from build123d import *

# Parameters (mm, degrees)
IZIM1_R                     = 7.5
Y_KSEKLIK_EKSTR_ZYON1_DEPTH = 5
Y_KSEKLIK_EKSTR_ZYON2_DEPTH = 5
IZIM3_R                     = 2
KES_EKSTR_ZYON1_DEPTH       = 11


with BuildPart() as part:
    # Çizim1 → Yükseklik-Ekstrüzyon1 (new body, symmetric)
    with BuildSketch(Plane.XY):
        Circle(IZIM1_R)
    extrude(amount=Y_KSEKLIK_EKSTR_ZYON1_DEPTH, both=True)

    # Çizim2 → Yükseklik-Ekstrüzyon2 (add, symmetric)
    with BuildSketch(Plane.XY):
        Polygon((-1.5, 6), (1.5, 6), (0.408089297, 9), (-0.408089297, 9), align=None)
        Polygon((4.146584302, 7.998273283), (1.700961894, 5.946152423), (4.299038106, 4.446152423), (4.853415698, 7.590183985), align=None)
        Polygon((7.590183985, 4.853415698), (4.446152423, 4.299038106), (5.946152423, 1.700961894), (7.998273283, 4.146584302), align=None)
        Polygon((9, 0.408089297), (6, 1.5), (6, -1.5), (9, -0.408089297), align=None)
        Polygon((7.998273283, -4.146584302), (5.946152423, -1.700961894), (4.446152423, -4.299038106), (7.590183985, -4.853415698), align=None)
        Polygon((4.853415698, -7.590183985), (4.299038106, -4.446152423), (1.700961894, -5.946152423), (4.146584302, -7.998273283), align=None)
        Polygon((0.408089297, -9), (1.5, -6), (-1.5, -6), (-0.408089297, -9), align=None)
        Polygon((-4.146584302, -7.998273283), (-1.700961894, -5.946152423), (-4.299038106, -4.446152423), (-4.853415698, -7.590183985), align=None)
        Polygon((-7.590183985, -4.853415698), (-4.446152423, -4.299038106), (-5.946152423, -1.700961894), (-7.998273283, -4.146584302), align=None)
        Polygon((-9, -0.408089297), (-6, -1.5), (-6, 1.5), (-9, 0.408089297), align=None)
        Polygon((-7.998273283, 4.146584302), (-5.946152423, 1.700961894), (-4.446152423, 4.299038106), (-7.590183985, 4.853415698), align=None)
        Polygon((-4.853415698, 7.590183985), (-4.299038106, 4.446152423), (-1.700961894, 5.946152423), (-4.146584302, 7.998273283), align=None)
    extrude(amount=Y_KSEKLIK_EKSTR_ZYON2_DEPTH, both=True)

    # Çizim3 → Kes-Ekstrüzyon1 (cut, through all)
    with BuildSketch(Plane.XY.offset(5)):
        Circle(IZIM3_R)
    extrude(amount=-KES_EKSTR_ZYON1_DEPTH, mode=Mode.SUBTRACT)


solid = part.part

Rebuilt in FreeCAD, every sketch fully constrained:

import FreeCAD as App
import Part
import Sketcher

V = App.Vector
Q = App.Units.Quantity

doc = App.newDocument("Part")
body = doc.addObject("PartDesign::Body", "Body")

sketch1 = body.newObject("Sketcher::SketchObject", "Sketch")
sketch1.AttachmentSupport = (doc.getObject("XY_Plane"), [""])
sketch1.MapMode = "FlatFace"
sketch1.addGeometry(Part.Circle(V(0, 0, 0), V(0, 0, 1), 7.5), False)
sketch1.addConstraint(Sketcher.Constraint("Coincident", 0, 3, -1, 1))
sketch1.addConstraint(Sketcher.Constraint("Diameter", 0, Q("15 mm")))
pad1 = body.newObject("PartDesign::Pad", "Pad")
pad1.Profile = sketch1
pad1.Length = 10
pad1.Midplane = True

sketch2 = body.newObject("Sketcher::SketchObject", "Sketch001")
sketch2.AttachmentSupport = (doc.getObject("XY_Plane"), [""])
sketch2.MapMode = "FlatFace"
sketch2.addGeometry(Part.LineSegment(V(-1.5, 6, 0), V(1.5, 6, 0)), False)
sketch2.addGeometry(Part.LineSegment(V(1.5, 6, 0), V(0.408089, 9, 0)), False)
sketch2.addGeometry(Part.LineSegment(V(0.408089, 9, 0), V(-0.408089, 9, 0)), False)
sketch2.addGeometry(Part.LineSegment(V(-0.408089, 9, 0), V(-1.5, 6, 0)), False)
sketch2.addGeometry(Part.LineSegment(V(4.146584, 7.998273, 0), V(1.700962, 5.946152, 0)), False)
sketch2.addGeometry(Part.LineSegment(V(1.700962, 5.946152, 0), V(4.299038, 4.446152, 0)), False)
sketch2.addGeometry(Part.LineSegment(V(4.299038, 4.446152, 0), V(4.853416, 7.590184, 0)), False)
sketch2.addGeometry(Part.LineSegment(V(4.853416, 7.590184, 0), V(4.146584, 7.998273, 0)), False)
sketch2.addGeometry(Part.LineSegment(V(7.590184, 4.853416, 0), V(4.446152, 4.299038, 0)), False)
sketch2.addGeometry(Part.LineSegment(V(4.446152, 4.299038, 0), V(5.946152, 1.700962, 0)), False)
sketch2.addGeometry(Part.LineSegment(V(5.946152, 1.700962, 0), V(7.998273, 4.146584, 0)), False)
sketch2.addGeometry(Part.LineSegment(V(7.998273, 4.146584, 0), V(7.590184, 4.853416, 0)), False)
sketch2.addGeometry(Part.LineSegment(V(9, 0.408089, 0), V(6, 1.5, 0)), False)
sketch2.addGeometry(Part.LineSegment(V(6, 1.5, 0), V(6, -1.5, 0)), False)
sketch2.addGeometry(Part.LineSegment(V(6, -1.5, 0), V(9, -0.408089, 0)), False)
sketch2.addGeometry(Part.LineSegment(V(9, -0.408089, 0), V(9, 0.408089, 0)), False)
sketch2.addGeometry(Part.LineSegment(V(7.998273, -4.146584, 0), V(5.946152, -1.700962, 0)), False)
sketch2.addGeometry(Part.LineSegment(V(5.946152, -1.700962, 0), V(4.446152, -4.299038, 0)), False)
sketch2.addGeometry(Part.LineSegment(V(4.446152, -4.299038, 0), V(7.590184, -4.853416, 0)), False)
sketch2.addGeometry(Part.LineSegment(V(7.590184, -4.853416, 0), V(7.998273, -4.146584, 0)), False)
sketch2.addGeometry(Part.LineSegment(V(4.853416, -7.590184, 0), V(4.299038, -4.446152, 0)), False)
sketch2.addGeometry(Part.LineSegment(V(4.299038, -4.446152, 0), V(1.700962, -5.946152, 0)), False)
sketch2.addGeometry(Part.LineSegment(V(1.700962, -5.946152, 0), V(4.146584, -7.998273, 0)), False)
sketch2.addGeometry(Part.LineSegment(V(4.146584, -7.998273, 0), V(4.853416, -7.590184, 0)), False)
sketch2.addGeometry(Part.LineSegment(V(0.408089, -9, 0), V(1.5, -6, 0)), False)
sketch2.addGeometry(Part.LineSegment(V(1.5, -6, 0), V(-1.5, -6, 0)), False)
sketch2.addGeometry(Part.LineSegment(V(-1.5, -6, 0), V(-0.408089, -9, 0)), False)
sketch2.addGeometry(Part.LineSegment(V(-0.408089, -9, 0), V(0.408089, -9, 0)), False)
sketch2.addGeometry(Part.LineSegment(V(-4.146584, -7.998273, 0), V(-1.700962, -5.946152, 0)), False)
sketch2.addGeometry(Part.LineSegment(V(-1.700962, -5.946152, 0), V(-4.299038, -4.446152, 0)), False)
sketch2.addGeometry(Part.LineSegment(V(-4.299038, -4.446152, 0), V(-4.853416, -7.590184, 0)), False)
sketch2.addGeometry(Part.LineSegment(V(-4.853416, -7.590184, 0), V(-4.146584, -7.998273, 0)), False)
sketch2.addGeometry(Part.LineSegment(V(-7.590184, -4.853416, 0), V(-4.446152, -4.299038, 0)), False)
sketch2.addGeometry(Part.LineSegment(V(-4.446152, -4.299038, 0), V(-5.946152, -1.700962, 0)), False)
sketch2.addGeometry(Part.LineSegment(V(-5.946152, -1.700962, 0), V(-7.998273, -4.146584, 0)), False)
sketch2.addGeometry(Part.LineSegment(V(-7.998273, -4.146584, 0), V(-7.590184, -4.853416, 0)), False)
sketch2.addGeometry(Part.LineSegment(V(-9, -0.408089, 0), V(-6, -1.5, 0)), False)
sketch2.addGeometry(Part.LineSegment(V(-6, -1.5, 0), V(-6, 1.5, 0)), False)
sketch2.addGeometry(Part.LineSegment(V(-6, 1.5, 0), V(-9, 0.408089, 0)), False)
sketch2.addGeometry(Part.LineSegment(V(-9, 0.408089, 0), V(-9, -0.408089, 0)), False)
sketch2.addGeometry(Part.LineSegment(V(-7.998273, 4.146584, 0), V(-5.946152, 1.700962, 0)), False)
sketch2.addGeometry(Part.LineSegment(V(-5.946152, 1.700962, 0), V(-4.446152, 4.299038, 0)), False)
sketch2.addGeometry(Part.LineSegment(V(-4.446152, 4.299038, 0), V(-7.590184, 4.853416, 0)), False)
sketch2.addGeometry(Part.LineSegment(V(-7.590184, 4.853416, 0), V(-7.998273, 4.146584, 0)), False)
sketch2.addGeometry(Part.LineSegment(V(-4.853416, 7.590184, 0), V(-4.299038, 4.446152, 0)), False)
sketch2.addGeometry(Part.LineSegment(V(-4.299038, 4.446152, 0), V(-1.700962, 5.946152, 0)), False)
sketch2.addGeometry(Part.LineSegment(V(-1.700962, 5.946152, 0), V(-4.146584, 7.998273, 0)), False)
sketch2.addGeometry(Part.LineSegment(V(-4.146584, 7.998273, 0), V(-4.853416, 7.590184, 0)), False)
sketch2.addConstraint(Sketcher.Constraint("Coincident", 0, 2, 1, 1))
sketch2.addConstraint(Sketcher.Constraint("Coincident", 1, 2, 2, 1))
sketch2.addConstraint(Sketcher.Constraint("Coincident", 2, 2, 3, 1))
sketch2.addConstraint(Sketcher.Constraint("Coincident", 3, 2, 0, 1))
sketch2.addConstraint(Sketcher.Constraint("Coincident", 4, 2, 5, 1))
sketch2.addConstraint(Sketcher.Constraint("Coincident", 5, 2, 6, 1))
sketch2.addConstraint(Sketcher.Constraint("Coincident", 6, 2, 7, 1))
sketch2.addConstraint(Sketcher.Constraint("Coincident", 7, 2, 4, 1))
sketch2.addConstraint(Sketcher.Constraint("Coincident", 8, 2, 9, 1))
sketch2.addConstraint(Sketcher.Constraint("Coincident", 9, 2, 10, 1))
sketch2.addConstraint(Sketcher.Constraint("Coincident", 10, 2, 11, 1))
sketch2.addConstraint(Sketcher.Constraint("Coincident", 11, 2, 8, 1))
sketch2.addConstraint(Sketcher.Constraint("Coincident", 12, 2, 13, 1))
sketch2.addConstraint(Sketcher.Constraint("Coincident", 13, 2, 14, 1))
sketch2.addConstraint(Sketcher.Constraint("Coincident", 14, 2, 15, 1))
sketch2.addConstraint(Sketcher.Constraint("Coincident", 15, 2, 12, 1))
sketch2.addConstraint(Sketcher.Constraint("Coincident", 16, 2, 17, 1))
sketch2.addConstraint(Sketcher.Constraint("Coincident", 17, 2, 18, 1))
sketch2.addConstraint(Sketcher.Constraint("Coincident", 18, 2, 19, 1))
sketch2.addConstraint(Sketcher.Constraint("Coincident", 19, 2, 16, 1))
sketch2.addConstraint(Sketcher.Constraint("Coincident", 20, 2, 21, 1))
sketch2.addConstraint(Sketcher.Constraint("Coincident", 21, 2, 22, 1))
sketch2.addConstraint(Sketcher.Constraint("Coincident", 22, 2, 23, 1))
sketch2.addConstraint(Sketcher.Constraint("Coincident", 23, 2, 20, 1))
sketch2.addConstraint(Sketcher.Constraint("Coincident", 24, 2, 25, 1))
sketch2.addConstraint(Sketcher.Constraint("Coincident", 25, 2, 26, 1))
sketch2.addConstraint(Sketcher.Constraint("Coincident", 26, 2, 27, 1))
sketch2.addConstraint(Sketcher.Constraint("Coincident", 27, 2, 24, 1))
sketch2.addConstraint(Sketcher.Constraint("Coincident", 28, 2, 29, 1))
sketch2.addConstraint(Sketcher.Constraint("Coincident", 29, 2, 30, 1))
sketch2.addConstraint(Sketcher.Constraint("Coincident", 30, 2, 31, 1))
sketch2.addConstraint(Sketcher.Constraint("Coincident", 31, 2, 28, 1))
sketch2.addConstraint(Sketcher.Constraint("Coincident", 32, 2, 33, 1))
sketch2.addConstraint(Sketcher.Constraint("Coincident", 33, 2, 34, 1))
sketch2.addConstraint(Sketcher.Constraint("Coincident", 34, 2, 35, 1))
sketch2.addConstraint(Sketcher.Constraint("Coincident", 35, 2, 32, 1))
sketch2.addConstraint(Sketcher.Constraint("Coincident", 36, 2, 37, 1))
sketch2.addConstraint(Sketcher.Constraint("Coincident", 37, 2, 38, 1))
sketch2.addConstraint(Sketcher.Constraint("Coincident", 38, 2, 39, 1))
sketch2.addConstraint(Sketcher.Constraint("Coincident", 39, 2, 36, 1))
sketch2.addConstraint(Sketcher.Constraint("Coincident", 40, 2, 41, 1))
sketch2.addConstraint(Sketcher.Constraint("Coincident", 41, 2, 42, 1))
sketch2.addConstraint(Sketcher.Constraint("Coincident", 42, 2, 43, 1))
sketch2.addConstraint(Sketcher.Constraint("Coincident", 43, 2, 40, 1))
sketch2.addConstraint(Sketcher.Constraint("Coincident", 44, 2, 45, 1))
sketch2.addConstraint(Sketcher.Constraint("Coincident", 45, 2, 46, 1))
sketch2.addConstraint(Sketcher.Constraint("Coincident", 46, 2, 47, 1))
sketch2.addConstraint(Sketcher.Constraint("Coincident", 47, 2, 44, 1))
sketch2.addConstraint(Sketcher.Constraint("Horizontal", 0))
sketch2.addConstraint(Sketcher.Constraint("Horizontal", 2))
sketch2.addConstraint(Sketcher.Constraint("Vertical", 13))
sketch2.addConstraint(Sketcher.Constraint("Vertical", 15))
sketch2.addConstraint(Sketcher.Constraint("Horizontal", 25))
sketch2.addConstraint(Sketcher.Constraint("Horizontal", 27))
sketch2.addConstraint(Sketcher.Constraint("Vertical", 37))
sketch2.addConstraint(Sketcher.Constraint("Vertical", 39))
sketch2.addConstraint(Sketcher.Constraint("Symmetric", 3, 2, 24, 2, -1, 1))
sketch2.addConstraint(Sketcher.Constraint("Symmetric", 1, 2, 26, 2, -1, 1))
sketch2.addConstraint(Sketcher.Constraint("Symmetric", 4, 2, 28, 2, -1, 1))
sketch2.addConstraint(Sketcher.Constraint("Symmetric", 5, 2, 29, 2, -1, 1))
sketch2.addConstraint(Sketcher.Constraint("Symmetric", 6, 2, 30, 2, -1, 1))
sketch2.addConstraint(Sketcher.Constraint("Symmetric", 7, 2, 31, 2, -1, 1))
sketch2.addConstraint(Sketcher.Constraint("Symmetric", 8, 2, 32, 2, -1, 1))
sketch2.addConstraint(Sketcher.Constraint("Symmetric", 9, 2, 33, 2, -1, 1))
sketch2.addConstraint(Sketcher.Constraint("Symmetric", 10, 2, 34, 2, -1, 1))
sketch2.addConstraint(Sketcher.Constraint("Symmetric", 11, 2, 35, 2, -1, 1))
sketch2.addConstraint(Sketcher.Constraint("Symmetric", 12, 2, 36, 2, -1, 1))
sketch2.addConstraint(Sketcher.Constraint("Symmetric", 14, 2, 38, 2, -1, 1))
sketch2.addConstraint(Sketcher.Constraint("Symmetric", 16, 2, 40, 2, -1, 1))
sketch2.addConstraint(Sketcher.Constraint("Symmetric", 17, 2, 41, 2, -1, 1))
sketch2.addConstraint(Sketcher.Constraint("Symmetric", 18, 2, 42, 2, -1, 1))
sketch2.addConstraint(Sketcher.Constraint("Symmetric", 19, 2, 43, 2, -1, 1))
sketch2.addConstraint(Sketcher.Constraint("Symmetric", 20, 2, 44, 2, -1, 1))
sketch2.addConstraint(Sketcher.Constraint("Symmetric", 21, 2, 45, 2, -1, 1))
sketch2.addConstraint(Sketcher.Constraint("Symmetric", 22, 2, 46, 2, -1, 1))
sketch2.addConstraint(Sketcher.Constraint("Symmetric", 23, 2, 47, 2, -1, 1))
sketch2.addConstraint(Sketcher.Constraint("Symmetric", 21, 2, 28, 2, -2))
sketch2.addConstraint(Sketcher.Constraint("Symmetric", 20, 2, 29, 2, -2))
sketch2.addConstraint(Sketcher.Constraint("Symmetric", 23, 2, 30, 2, -2))
sketch2.addConstraint(Sketcher.Constraint("Symmetric", 22, 2, 31, 2, -2))
sketch2.addConstraint(Sketcher.Constraint("Symmetric", 17, 2, 32, 2, -2))
sketch2.addConstraint(Sketcher.Constraint("Symmetric", 16, 2, 33, 2, -2))
sketch2.addConstraint(Sketcher.Constraint("Symmetric", 19, 2, 34, 2, -2))
sketch2.addConstraint(Sketcher.Constraint("Symmetric", 18, 2, 35, 2, -2))
sketch2.addConstraint(Sketcher.Constraint("Parallel", 5, 7))
sketch2.addConstraint(Sketcher.Constraint("Parallel", 9, 11))
sketch2.addConstraint(Sketcher.Constraint("Perpendicular", 3, 12))
sketch2.addConstraint(Sketcher.Constraint("Perpendicular", 1, 14))
sketch2.addConstraint(Sketcher.Constraint("Perpendicular", 4, 16))
sketch2.addConstraint(Sketcher.Constraint("Perpendicular", 7, 17))
sketch2.addConstraint(Sketcher.Constraint("Perpendicular", 6, 18))
sketch2.addConstraint(Sketcher.Constraint("Perpendicular", 12, 24))
sketch2.addConstraint(Sketcher.Constraint("Perpendicular", 14, 26))
sketch2.addConstraint(Sketcher.Constraint("Perpendicular", 24, 36))
sketch2.addConstraint(Sketcher.Constraint("Perpendicular", 26, 38))
sketch2.addConstraint(Sketcher.Constraint("Horizontal", 13, 2, 36, 2))
sketch2.addConstraint(Sketcher.Constraint("Horizontal", 15, 2, 38, 2))
sketch2.addConstraint(Sketcher.Constraint("Vertical", 0, 2, 24, 2))
sketch2.addConstraint(Sketcher.Constraint("Equal", 25, 13))
sketch2.addConstraint(Sketcher.Constraint("Equal", 27, 15))
sketch2.addConstraint(Sketcher.Constraint("Equal", 3, 4))
sketch2.addConstraint(Sketcher.Constraint("Equal", 4, 6))
sketch2.addConstraint(Sketcher.Constraint("Equal", 6, 8))
sketch2.addConstraint(Sketcher.Constraint("Equal", 5, 9))
sketch2.addConstraint(Sketcher.Constraint("DistanceX", 0, 1, 0, 2, Q("3 mm")))
sketch2.addConstraint(Sketcher.Constraint("Angle", 1, Q("110 deg")))
sketch2.addConstraint(Sketcher.Constraint("Angle", 4, Q("-140 deg")))
sketch2.addConstraint(Sketcher.Constraint("Angle", 5, Q("-30 deg")))
sketch2.addConstraint(Sketcher.Constraint("Distance", 5, Q("3 mm")))
sketch2.addConstraint(Sketcher.Constraint("DistanceY", -1, 1, 0, 2, Q("6 mm")))
sketch2.addConstraint(Sketcher.Constraint("DistanceY", -1, 1, 1, 2, Q("9 mm")))
sketch2.addConstraint(Sketcher.Constraint("DistanceX", -1, 1, 12, 2, Q("6 mm")))
sketch2.addConstraint(Sketcher.Constraint("DistanceY", 17, 2, 9, 2, Q("6 mm")))
sketch2.addConstraint(Sketcher.Constraint("DistanceX", 29, 2, 21, 2, Q("6 mm")))
sketch2.addConstraint(Sketcher.Constraint("DistanceY", 10, 2, 6, 2, Q("3.4436 mm")))
sketch2.addConstraint(Sketcher.Constraint("DistanceX", 22, 2, 18, 2, Q("3.4436 mm")))
pad2 = body.newObject("PartDesign::Pad", "Pad001")
pad2.Profile = sketch2
pad2.Length = 10
pad2.Midplane = True

sketch3 = body.newObject("Sketcher::SketchObject", "Sketch002")
sketch3.AttachmentSupport = (doc.getObject("XY_Plane"), [""])
sketch3.MapMode = "FlatFace"
sketch3.AttachmentOffset = App.Placement(V(0, 0, 5), App.Rotation())
sketch3.addGeometry(Part.Circle(V(0, 0, 0), V(0, 0, 1), 2), False)
sketch3.addConstraint(Sketcher.Constraint("Coincident", 0, 3, -1, 1))
sketch3.addConstraint(Sketcher.Constraint("Diameter", 0, Q("4 mm")))
pocket1 = body.newObject("PartDesign::Pocket", "Pocket")
pocket1.Profile = sketch3
pocket1.Type = "ThroughAll"

doc.recompute()
